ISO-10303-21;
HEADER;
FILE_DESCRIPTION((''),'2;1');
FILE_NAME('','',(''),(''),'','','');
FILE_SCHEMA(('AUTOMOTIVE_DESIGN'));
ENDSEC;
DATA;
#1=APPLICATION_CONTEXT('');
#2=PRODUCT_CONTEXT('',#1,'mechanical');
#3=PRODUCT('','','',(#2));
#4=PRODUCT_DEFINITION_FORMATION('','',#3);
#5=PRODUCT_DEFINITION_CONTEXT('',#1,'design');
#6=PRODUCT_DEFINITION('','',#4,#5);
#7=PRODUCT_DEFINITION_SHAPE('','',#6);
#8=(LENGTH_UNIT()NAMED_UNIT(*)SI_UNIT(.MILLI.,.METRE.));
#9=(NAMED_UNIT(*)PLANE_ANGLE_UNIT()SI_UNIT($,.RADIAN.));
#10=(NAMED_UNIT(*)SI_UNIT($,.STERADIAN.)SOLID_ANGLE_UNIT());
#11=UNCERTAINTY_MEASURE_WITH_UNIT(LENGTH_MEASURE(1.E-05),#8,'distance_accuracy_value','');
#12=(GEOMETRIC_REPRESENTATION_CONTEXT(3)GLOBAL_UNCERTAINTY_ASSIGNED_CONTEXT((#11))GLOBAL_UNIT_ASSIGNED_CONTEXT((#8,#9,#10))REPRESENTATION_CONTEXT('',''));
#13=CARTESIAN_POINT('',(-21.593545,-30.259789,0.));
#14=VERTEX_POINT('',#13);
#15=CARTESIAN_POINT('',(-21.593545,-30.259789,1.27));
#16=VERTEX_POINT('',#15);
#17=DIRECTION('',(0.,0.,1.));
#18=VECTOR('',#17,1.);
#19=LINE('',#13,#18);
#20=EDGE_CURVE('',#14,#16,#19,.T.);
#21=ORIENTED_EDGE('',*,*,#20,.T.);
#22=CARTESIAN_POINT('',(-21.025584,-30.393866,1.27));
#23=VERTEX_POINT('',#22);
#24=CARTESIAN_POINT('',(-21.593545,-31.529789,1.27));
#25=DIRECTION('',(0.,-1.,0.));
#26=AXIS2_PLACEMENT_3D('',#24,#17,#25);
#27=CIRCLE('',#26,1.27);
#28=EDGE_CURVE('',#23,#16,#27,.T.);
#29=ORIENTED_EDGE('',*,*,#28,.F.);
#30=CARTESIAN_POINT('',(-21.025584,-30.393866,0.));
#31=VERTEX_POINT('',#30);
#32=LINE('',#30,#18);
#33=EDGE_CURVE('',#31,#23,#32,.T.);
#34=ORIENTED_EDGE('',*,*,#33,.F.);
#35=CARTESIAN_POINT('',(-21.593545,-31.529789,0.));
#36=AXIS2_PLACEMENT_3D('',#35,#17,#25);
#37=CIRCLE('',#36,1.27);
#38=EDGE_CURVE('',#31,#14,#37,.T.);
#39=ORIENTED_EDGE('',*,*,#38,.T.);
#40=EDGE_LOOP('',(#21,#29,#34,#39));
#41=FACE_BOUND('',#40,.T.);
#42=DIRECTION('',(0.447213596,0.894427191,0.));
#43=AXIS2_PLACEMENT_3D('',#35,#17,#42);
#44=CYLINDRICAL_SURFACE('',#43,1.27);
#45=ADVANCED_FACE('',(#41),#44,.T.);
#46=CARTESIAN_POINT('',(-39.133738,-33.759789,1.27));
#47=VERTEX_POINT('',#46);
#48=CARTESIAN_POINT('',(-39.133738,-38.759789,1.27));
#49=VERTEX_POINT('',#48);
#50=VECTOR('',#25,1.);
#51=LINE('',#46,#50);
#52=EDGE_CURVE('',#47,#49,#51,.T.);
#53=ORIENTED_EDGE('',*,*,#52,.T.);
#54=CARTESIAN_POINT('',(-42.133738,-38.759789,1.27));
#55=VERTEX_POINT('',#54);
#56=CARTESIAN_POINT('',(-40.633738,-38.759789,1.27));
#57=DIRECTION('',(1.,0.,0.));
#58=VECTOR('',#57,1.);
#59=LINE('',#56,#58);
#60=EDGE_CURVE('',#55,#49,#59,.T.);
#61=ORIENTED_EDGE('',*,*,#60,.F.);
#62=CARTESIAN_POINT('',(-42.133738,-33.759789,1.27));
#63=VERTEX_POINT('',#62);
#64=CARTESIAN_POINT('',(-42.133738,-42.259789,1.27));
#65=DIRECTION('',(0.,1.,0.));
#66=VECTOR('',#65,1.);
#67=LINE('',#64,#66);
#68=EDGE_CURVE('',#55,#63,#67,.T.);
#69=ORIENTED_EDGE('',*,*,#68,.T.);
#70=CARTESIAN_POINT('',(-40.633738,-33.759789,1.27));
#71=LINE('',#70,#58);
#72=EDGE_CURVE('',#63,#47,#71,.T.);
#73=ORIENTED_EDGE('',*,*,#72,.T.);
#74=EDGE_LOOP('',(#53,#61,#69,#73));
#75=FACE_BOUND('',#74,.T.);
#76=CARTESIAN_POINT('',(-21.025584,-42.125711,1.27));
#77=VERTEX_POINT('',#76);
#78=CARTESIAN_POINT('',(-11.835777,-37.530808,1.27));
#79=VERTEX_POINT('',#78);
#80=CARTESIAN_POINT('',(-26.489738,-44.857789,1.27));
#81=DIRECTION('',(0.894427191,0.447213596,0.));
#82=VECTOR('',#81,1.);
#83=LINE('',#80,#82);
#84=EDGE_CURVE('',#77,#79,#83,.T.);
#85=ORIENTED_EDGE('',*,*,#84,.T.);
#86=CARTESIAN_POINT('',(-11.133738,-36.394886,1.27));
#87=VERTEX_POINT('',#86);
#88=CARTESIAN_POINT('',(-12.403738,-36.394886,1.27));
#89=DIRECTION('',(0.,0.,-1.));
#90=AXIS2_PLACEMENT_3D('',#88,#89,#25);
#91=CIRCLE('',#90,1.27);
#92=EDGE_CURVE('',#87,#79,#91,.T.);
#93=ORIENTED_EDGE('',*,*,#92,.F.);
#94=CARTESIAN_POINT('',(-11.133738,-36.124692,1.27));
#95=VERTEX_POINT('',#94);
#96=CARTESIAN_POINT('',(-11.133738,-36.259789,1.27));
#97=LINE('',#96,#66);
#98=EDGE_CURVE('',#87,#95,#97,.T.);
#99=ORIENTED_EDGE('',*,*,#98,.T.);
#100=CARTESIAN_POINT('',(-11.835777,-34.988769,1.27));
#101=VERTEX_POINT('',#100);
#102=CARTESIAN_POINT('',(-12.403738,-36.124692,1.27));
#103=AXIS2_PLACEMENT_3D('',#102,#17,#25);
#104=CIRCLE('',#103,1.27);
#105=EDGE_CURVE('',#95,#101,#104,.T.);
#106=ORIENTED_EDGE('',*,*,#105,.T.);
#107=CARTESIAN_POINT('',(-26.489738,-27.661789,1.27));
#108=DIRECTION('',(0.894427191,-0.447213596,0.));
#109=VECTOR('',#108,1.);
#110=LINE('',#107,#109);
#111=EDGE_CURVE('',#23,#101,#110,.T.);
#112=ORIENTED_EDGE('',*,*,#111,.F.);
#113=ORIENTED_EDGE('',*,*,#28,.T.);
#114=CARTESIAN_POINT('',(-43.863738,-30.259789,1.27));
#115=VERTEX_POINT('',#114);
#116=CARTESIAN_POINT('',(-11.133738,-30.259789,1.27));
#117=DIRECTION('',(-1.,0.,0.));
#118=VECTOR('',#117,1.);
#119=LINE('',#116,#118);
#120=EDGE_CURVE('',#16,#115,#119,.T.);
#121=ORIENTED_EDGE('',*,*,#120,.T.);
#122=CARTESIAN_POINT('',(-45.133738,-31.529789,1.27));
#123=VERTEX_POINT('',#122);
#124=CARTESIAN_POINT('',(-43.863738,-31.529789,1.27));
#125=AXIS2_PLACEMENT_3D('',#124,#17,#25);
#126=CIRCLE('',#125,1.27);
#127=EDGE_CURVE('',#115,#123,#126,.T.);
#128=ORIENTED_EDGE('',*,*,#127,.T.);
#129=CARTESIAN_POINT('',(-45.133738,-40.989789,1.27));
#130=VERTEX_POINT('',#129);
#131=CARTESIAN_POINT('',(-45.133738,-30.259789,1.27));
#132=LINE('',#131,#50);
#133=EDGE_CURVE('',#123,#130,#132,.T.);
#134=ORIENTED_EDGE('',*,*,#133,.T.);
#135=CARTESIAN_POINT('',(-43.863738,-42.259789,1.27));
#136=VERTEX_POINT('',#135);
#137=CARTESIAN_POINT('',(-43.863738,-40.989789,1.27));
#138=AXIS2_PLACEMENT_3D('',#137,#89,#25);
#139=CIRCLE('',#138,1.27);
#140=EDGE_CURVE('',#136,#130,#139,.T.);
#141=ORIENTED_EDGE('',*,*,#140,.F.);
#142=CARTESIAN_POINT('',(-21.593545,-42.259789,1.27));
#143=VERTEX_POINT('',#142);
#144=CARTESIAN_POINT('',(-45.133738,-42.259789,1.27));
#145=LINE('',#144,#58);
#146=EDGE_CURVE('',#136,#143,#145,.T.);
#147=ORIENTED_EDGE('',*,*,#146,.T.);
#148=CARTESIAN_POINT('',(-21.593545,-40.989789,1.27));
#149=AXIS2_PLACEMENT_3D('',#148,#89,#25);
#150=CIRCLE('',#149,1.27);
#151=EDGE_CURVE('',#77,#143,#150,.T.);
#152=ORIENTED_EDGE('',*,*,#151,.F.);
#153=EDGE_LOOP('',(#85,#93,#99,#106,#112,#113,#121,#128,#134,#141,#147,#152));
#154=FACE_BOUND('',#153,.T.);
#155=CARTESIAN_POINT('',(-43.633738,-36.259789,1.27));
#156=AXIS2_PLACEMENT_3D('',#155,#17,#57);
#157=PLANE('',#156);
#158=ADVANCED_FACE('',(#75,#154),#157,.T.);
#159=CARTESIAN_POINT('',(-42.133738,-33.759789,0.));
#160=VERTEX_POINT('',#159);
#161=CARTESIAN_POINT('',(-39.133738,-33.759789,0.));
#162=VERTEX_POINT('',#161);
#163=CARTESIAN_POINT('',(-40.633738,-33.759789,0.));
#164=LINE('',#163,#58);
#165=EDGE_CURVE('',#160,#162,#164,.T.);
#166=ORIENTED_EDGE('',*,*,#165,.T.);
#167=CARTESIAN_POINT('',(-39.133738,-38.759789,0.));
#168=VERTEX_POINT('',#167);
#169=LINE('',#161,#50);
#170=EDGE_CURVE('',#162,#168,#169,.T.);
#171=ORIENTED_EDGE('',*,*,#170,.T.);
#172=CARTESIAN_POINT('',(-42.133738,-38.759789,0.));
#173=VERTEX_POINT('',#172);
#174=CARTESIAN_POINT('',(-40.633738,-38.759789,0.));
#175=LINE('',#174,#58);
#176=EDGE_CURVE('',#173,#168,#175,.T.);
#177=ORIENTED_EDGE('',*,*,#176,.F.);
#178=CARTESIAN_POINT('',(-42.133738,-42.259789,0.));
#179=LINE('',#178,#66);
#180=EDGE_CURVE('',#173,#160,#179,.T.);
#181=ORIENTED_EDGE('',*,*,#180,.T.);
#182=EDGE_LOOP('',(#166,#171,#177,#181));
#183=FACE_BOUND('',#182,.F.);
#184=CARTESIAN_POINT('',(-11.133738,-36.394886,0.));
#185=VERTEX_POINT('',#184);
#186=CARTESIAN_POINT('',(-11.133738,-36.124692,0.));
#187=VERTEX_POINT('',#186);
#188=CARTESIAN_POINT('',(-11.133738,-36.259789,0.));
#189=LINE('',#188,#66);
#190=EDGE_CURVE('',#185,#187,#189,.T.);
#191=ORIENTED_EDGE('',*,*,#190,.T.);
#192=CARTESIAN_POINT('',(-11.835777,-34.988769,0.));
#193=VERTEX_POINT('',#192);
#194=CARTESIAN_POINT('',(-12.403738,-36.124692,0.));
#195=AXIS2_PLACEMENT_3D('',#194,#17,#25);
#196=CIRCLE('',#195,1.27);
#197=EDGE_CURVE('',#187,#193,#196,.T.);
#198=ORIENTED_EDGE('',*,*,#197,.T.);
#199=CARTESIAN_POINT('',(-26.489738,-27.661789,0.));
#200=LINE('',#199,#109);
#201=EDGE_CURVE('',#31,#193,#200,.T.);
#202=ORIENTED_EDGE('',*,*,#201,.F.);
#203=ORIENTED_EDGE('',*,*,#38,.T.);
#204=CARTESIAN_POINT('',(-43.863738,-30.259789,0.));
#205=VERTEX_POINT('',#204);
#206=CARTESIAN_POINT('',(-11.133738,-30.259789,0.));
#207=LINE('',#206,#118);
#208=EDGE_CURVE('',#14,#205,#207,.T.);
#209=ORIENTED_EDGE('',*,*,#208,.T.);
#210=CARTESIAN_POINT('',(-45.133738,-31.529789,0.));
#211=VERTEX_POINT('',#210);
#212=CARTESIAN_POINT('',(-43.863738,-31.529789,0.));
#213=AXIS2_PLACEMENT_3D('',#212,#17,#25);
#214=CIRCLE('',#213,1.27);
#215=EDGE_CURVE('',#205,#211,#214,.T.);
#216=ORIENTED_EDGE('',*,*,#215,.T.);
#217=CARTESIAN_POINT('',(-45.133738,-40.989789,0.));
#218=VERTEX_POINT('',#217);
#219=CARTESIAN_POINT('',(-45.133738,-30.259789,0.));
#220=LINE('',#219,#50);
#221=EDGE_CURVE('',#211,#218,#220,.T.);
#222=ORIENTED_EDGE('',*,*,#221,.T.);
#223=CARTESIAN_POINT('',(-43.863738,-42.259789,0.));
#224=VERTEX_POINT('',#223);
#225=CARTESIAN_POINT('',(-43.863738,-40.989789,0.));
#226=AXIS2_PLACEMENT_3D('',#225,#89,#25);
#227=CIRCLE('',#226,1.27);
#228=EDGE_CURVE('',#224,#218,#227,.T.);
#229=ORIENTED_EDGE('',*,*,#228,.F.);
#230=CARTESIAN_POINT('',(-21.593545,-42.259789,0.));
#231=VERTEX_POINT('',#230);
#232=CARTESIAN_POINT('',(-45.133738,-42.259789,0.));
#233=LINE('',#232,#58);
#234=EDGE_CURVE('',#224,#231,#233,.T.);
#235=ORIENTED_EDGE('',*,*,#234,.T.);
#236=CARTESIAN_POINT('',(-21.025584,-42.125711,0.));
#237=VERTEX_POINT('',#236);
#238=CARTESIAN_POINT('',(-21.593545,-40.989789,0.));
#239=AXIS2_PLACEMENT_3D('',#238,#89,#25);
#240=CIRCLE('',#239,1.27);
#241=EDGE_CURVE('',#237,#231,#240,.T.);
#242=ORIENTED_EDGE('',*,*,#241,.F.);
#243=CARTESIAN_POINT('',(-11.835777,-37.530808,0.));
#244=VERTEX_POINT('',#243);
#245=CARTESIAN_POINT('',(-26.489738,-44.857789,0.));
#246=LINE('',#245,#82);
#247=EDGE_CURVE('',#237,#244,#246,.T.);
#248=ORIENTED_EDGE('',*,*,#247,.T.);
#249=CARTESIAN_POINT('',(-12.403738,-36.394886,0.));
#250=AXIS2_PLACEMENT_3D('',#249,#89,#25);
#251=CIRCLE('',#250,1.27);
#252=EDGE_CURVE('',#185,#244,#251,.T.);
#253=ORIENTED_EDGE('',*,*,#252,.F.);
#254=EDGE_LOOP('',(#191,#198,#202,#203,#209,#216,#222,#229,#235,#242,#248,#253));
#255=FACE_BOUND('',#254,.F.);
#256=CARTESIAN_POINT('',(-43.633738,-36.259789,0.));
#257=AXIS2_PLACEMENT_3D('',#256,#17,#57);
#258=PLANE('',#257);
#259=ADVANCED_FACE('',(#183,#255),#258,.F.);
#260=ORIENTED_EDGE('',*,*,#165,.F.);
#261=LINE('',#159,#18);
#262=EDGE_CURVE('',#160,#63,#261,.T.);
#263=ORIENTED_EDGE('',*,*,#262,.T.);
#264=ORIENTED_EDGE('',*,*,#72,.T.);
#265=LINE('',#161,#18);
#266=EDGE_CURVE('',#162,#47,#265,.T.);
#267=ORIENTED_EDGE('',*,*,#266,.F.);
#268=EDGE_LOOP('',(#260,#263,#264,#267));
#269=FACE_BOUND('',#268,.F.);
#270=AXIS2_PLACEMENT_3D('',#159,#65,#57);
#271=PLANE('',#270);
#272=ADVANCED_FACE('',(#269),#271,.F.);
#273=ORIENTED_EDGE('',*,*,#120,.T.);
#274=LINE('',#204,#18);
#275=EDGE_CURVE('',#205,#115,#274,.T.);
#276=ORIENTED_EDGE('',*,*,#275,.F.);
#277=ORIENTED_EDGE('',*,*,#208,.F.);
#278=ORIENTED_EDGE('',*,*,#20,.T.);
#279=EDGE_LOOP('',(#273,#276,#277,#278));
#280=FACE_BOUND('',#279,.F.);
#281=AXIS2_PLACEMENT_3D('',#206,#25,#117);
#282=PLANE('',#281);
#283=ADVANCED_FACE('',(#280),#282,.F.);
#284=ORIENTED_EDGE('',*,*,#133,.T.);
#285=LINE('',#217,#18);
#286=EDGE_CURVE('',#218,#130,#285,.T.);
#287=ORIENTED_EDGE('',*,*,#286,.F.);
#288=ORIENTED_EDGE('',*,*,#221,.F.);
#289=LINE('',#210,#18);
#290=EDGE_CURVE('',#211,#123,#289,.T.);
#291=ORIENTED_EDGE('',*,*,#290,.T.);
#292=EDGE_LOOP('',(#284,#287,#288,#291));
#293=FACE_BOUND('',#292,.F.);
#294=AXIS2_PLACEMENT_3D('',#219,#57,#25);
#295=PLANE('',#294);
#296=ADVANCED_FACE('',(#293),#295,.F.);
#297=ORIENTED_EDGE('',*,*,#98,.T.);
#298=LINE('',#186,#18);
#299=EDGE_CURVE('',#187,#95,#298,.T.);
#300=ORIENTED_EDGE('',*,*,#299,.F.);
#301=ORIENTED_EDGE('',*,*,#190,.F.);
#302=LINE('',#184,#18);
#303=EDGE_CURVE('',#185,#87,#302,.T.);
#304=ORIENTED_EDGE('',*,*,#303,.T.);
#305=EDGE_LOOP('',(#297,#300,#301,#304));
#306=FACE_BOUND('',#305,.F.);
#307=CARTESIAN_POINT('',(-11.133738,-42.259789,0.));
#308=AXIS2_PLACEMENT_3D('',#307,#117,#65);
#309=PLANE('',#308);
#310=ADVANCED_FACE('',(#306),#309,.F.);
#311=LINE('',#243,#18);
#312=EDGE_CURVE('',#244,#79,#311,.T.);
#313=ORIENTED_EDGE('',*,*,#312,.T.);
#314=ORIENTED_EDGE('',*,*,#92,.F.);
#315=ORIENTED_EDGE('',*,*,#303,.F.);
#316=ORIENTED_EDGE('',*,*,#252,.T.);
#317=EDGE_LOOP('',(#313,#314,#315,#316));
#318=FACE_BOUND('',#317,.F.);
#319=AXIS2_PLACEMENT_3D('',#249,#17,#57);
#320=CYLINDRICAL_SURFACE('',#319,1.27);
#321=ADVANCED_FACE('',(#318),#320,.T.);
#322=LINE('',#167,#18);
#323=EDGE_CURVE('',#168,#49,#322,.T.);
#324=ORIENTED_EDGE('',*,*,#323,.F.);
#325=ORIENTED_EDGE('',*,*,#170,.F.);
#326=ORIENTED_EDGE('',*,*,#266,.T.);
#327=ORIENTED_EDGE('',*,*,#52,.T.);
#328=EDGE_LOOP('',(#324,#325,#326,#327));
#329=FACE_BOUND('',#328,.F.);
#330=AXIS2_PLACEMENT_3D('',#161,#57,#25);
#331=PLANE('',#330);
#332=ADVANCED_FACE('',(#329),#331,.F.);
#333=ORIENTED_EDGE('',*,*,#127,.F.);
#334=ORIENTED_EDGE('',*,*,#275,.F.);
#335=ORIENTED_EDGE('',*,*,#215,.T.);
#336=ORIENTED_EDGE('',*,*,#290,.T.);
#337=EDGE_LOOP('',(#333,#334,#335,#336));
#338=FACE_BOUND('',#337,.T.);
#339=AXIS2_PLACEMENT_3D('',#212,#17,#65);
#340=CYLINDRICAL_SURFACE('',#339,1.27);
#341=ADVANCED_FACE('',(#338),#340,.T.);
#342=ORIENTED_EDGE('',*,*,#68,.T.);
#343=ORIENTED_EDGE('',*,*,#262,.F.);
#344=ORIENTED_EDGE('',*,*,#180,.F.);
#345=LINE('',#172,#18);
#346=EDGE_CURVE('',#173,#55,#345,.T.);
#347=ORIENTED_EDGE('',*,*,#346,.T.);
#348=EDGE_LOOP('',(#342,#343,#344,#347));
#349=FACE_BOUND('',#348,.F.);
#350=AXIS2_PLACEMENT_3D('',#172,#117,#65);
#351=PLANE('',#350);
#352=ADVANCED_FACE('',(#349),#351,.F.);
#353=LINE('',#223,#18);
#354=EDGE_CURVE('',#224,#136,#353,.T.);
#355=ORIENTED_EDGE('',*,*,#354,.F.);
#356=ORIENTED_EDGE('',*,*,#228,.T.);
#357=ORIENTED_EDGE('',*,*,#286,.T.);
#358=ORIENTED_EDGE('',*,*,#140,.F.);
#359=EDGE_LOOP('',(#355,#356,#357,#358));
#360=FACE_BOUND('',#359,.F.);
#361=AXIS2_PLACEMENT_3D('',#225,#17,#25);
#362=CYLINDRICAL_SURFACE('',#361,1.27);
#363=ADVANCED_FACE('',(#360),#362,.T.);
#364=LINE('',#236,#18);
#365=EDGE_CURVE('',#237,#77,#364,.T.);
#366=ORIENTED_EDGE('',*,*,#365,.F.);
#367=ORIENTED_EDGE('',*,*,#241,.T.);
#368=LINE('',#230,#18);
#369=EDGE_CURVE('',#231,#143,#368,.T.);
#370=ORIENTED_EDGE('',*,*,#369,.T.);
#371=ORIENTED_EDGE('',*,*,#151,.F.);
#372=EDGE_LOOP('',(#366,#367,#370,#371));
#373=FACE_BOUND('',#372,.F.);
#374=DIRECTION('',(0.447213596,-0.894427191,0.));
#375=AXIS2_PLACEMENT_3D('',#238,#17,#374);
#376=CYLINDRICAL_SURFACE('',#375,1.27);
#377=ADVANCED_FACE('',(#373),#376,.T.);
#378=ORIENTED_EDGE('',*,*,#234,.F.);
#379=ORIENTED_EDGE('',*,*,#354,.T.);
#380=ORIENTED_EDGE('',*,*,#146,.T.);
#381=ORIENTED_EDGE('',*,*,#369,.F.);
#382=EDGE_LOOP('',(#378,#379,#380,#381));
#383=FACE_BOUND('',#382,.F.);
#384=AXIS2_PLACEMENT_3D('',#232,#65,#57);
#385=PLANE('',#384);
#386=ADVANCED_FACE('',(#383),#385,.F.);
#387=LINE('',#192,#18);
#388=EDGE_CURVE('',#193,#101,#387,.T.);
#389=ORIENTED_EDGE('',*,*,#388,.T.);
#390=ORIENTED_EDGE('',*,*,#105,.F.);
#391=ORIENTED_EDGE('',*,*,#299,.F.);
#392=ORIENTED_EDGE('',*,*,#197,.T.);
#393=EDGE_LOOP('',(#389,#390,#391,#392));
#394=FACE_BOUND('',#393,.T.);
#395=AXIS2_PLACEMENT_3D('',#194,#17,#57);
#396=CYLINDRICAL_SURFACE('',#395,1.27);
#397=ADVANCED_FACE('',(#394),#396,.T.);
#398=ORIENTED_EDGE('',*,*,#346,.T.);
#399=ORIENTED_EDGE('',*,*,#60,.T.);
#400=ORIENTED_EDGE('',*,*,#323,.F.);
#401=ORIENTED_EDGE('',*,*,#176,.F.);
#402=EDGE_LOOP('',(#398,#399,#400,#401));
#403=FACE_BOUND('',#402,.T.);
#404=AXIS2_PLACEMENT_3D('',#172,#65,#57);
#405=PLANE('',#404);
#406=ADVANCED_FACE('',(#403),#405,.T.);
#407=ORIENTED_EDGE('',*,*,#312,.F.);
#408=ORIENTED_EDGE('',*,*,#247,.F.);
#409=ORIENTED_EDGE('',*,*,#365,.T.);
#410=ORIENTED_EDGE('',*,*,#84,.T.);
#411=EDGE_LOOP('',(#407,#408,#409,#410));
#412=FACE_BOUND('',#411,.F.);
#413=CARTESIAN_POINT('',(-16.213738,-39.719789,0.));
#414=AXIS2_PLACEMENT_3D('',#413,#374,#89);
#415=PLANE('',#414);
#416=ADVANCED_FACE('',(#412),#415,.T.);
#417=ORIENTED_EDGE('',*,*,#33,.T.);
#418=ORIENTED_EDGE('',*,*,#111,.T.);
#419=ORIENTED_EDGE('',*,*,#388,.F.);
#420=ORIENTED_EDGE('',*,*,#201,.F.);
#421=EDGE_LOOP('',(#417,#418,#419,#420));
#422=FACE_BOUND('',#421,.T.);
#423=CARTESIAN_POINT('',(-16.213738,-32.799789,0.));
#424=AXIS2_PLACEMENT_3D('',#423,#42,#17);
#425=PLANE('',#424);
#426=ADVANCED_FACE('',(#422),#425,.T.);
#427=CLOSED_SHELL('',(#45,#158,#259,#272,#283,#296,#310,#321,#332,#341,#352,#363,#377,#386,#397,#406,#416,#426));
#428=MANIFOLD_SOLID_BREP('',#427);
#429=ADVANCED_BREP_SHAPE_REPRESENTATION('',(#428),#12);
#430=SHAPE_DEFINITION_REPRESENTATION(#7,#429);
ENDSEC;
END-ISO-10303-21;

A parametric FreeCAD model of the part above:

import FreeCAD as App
import Part
import Sketcher
from FreeCAD import Vector


def edges_at(feature, points):
    """Names of the edges that pass closest to the given points."""
    edges = feature.Shape.Edges
    near = lambda p: min(range(len(edges)), key=lambda i: edges[i].distToShape(Part.Vertex(*p))[0])
    return sorted({f"Edge{near(p) + 1}" for p in points})

doc = App.newDocument("Part")
params = doc.addObject("Spreadsheet::Sheet", "Params")
for row, (alias, value) in enumerate([
    ("sketch1_width", "34 mm"),
    ("sketch1_width2", "3 mm"),
    ("sketch1_height", "12 mm"),
    ("sketch1_height2", "5 mm"),
    ("pad1_length", "1.27 mm"),
    ("chamfer_size", "10.16 mm"),
    ("chamfer_size2", "5.08 mm"),
    ("chamfer2_size", "10.16 mm"),
    ("chamfer2_size2", "5.08 mm"),
    ("fillet_radius", "1.27 mm"),
    ("fillet2_radius", "1.27 mm"),
], start=1):
    params.set(f"A{row}", alias)
    params.set(f"B{row}", "=" + value)
    params.setAlias(f"B{row}", alias)

body = doc.addObject("PartDesign::Body", "Body")

sketch1 = doc.addObject("Sketcher::SketchObject", "Sketch")
body.addObject(sketch1)
sketch1.AttachmentSupport = (doc.XY_Plane, [""])
sketch1.MapMode = "FlatFace"
sketch1.addGeometry([
    Part.LineSegment(Vector(-45.1, -30.3, 0), Vector(-45.1, -42.3, 0)),
    Part.LineSegment(Vector(-45.1, -42.3, 0), Vector(-11.1, -42.3, 0)),
    Part.LineSegment(Vector(-11.1, -42.3, 0), Vector(-11.1, -30.3, 0)),
    Part.LineSegment(Vector(-11.1, -30.3, 0), Vector(-45.1, -30.3, 0)),
    Part.LineSegment(Vector(-39.1, -38.8, 0), Vector(-42.1, -38.8, 0)),
    Part.LineSegment(Vector(-42.1, -38.8, 0), Vector(-42.1, -33.8, 0)),
    Part.LineSegment(Vector(-42.1, -33.8, 0), Vector(-39.1, -33.8, 0)),
    Part.LineSegment(Vector(-39.1, -33.8, 0), Vector(-39.1, -38.8, 0)),
], False)
sketch1.addConstraint([
    Sketcher.Constraint("Coincident", 0, 2, 1, 1),
    Sketcher.Constraint("Coincident", 1, 2, 2, 1),
    Sketcher.Constraint("Coincident", 2, 2, 3, 1),
    Sketcher.Constraint("Coincident", 3, 2, 0, 1),
    Sketcher.Constraint("Coincident", 4, 2, 5, 1),
    Sketcher.Constraint("Coincident", 5, 2, 6, 1),
    Sketcher.Constraint("Coincident", 6, 2, 7, 1),
    Sketcher.Constraint("Coincident", 7, 2, 4, 1),
    Sketcher.Constraint("Vertical", 0),
    Sketcher.Constraint("Horizontal", 1),
    Sketcher.Constraint("Vertical", 2),
    Sketcher.Constraint("Horizontal", 3),
    Sketcher.Constraint("Horizontal", 4),
    Sketcher.Constraint("Vertical", 5),
    Sketcher.Constraint("Horizontal", 6),
    Sketcher.Constraint("Vertical", 7),
    Sketcher.Constraint("DistanceX", 1, 1, 1, 2, 34.0),
    Sketcher.Constraint("DistanceX", 4, 2, 4, 1, 3.0),
    Sketcher.Constraint("DistanceY", 0, 2, 0, 1, 12.0),
    Sketcher.Constraint("DistanceY", 5, 1, 5, 2, 5.0),
    Sketcher.Constraint("DistanceX", 0, 2, 4, 2, 3.0),
    Sketcher.Constraint("DistanceY", 0, 2, 4, 2, 3.5),
    Sketcher.Constraint("DistanceX", 0, 2, -1, 1, 45.133738),
    Sketcher.Constraint("DistanceY", 0, 2, -1, 1, 42.259789),
])
sketch1.setExpression("Constraints[16]", "Params.sketch1_width")
sketch1.setExpression("Constraints[17]", "Params.sketch1_width2")
sketch1.setExpression("Constraints[18]", "Params.sketch1_height")
sketch1.setExpression("Constraints[19]", "Params.sketch1_height2")
pad1 = doc.addObject("PartDesign::Pad", "Pad")
body.addObject(pad1)
pad1.Profile = sketch1
pad1.setExpression("Length", "Params.pad1_length")
doc.recompute()

chamfer = doc.addObject("PartDesign::Chamfer", "Chamfer")
body.addObject(chamfer)
chamfer.Base = (pad1, edges_at(pad1, [(-11.134, -30.26, 0.635)]))
chamfer.ChamferType = "Two distances"
chamfer.setExpression("Size", "Params.chamfer_size")
chamfer.setExpression("Size2", "Params.chamfer_size2")
chamfer.FlipDirection = True
doc.recompute()

chamfer2 = doc.addObject("PartDesign::Chamfer", "Chamfer001")
body.addObject(chamfer2)
chamfer2.Base = (chamfer, edges_at(chamfer, [(-11.134, -42.26, 0.635)]))
chamfer2.ChamferType = "Two distances"
chamfer2.setExpression("Size", "Params.chamfer2_size")
chamfer2.setExpression("Size2", "Params.chamfer2_size2")
chamfer2.FlipDirection = True
doc.recompute()

fillet = doc.addObject("PartDesign::Fillet", "Fillet")
body.addObject(fillet)
fillet.Base = (chamfer2, edges_at(chamfer2, [
    (-21.294, -30.26, 0.635),
    (-11.134, -35.34, 0.635),
    (-11.134, -37.18, 0.635),
    (-21.294, -42.26, 0.635),
]))
fillet.setExpression("Radius", "Params.fillet_radius")
doc.recompute()

fillet2 = doc.addObject("PartDesign::Fillet", "Fillet001")
body.addObject(fillet2)
fillet2.Base = (fillet, edges_at(fillet, [(-45.134, -42.26, 0.635), (-45.134, -30.26, 0.635)]))
fillet2.setExpression("Radius", "Params.fillet2_radius")

doc.recompute()
